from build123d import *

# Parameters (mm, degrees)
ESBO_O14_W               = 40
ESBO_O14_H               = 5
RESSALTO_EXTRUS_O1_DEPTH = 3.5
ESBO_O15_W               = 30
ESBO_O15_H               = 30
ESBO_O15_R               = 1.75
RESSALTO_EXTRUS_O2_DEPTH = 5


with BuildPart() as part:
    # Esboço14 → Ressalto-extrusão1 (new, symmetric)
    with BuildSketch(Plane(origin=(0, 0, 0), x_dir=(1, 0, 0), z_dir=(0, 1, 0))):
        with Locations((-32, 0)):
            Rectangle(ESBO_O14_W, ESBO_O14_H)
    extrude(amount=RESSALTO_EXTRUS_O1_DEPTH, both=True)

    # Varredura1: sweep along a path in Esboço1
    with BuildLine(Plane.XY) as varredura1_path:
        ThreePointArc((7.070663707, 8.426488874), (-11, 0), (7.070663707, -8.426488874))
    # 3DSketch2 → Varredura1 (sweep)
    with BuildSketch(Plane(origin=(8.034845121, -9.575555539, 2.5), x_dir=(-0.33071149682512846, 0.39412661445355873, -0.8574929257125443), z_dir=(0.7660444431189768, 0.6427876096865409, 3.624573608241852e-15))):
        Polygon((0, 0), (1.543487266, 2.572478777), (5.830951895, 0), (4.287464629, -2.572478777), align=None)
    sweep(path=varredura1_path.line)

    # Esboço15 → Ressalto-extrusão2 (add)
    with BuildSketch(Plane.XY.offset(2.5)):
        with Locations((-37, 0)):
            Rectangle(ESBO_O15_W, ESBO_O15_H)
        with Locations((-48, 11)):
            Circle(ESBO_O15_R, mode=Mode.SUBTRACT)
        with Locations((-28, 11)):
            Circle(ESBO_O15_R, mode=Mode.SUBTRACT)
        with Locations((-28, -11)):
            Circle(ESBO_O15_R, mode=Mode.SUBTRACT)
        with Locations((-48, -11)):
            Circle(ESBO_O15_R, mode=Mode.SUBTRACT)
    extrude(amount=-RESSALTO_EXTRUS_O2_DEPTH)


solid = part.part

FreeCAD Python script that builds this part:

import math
import FreeCAD as App
import Part
import Sketcher
from FreeCAD import Vector
Q = App.Units.Quantity


def add_polygon(sketch, points):
    """Adds a closed chain of lines whose ends are joined by coincident constraints."""
    first, n = sketch.GeometryCount, len(points)
    for a, b in zip(points, points[1:] + points[:1]):
        sketch.addGeometry(Part.LineSegment(App.Vector(*a, 0), App.Vector(*b, 0)), False)
    for i in range(n):
        sketch.addConstraint(Sketcher.Constraint("Coincident", first + i, 2, first + (i + 1) % n, 1))

doc = App.newDocument("Part")
body = doc.addObject("PartDesign::Body", "Body")

# Sketch on XZ plane
sketch1 = doc.addObject("Sketcher::SketchObject", "Sketch")
body.addObject(sketch1)
sketch1.AttachmentSupport = (doc.XZ_Plane, [""])
sketch1.MapMode = "FlatFace"
add_polygon(sketch1, [(-52, -2.5), (-52, 2.5), (-12, 2.5), (-12, -2.5)])  # lines 0-3
sketch1.addConstraint(Sketcher.Constraint("Vertical", 0))
sketch1.addConstraint(Sketcher.Constraint("Horizontal", 1))
sketch1.addConstraint(Sketcher.Constraint("Vertical", 2))
sketch1.addConstraint(Sketcher.Constraint("Horizontal", 3))
sketch1.addConstraint(Sketcher.Constraint("DistanceX", 1, 1, 1, 2, Q("40 mm")))
sketch1.addConstraint(Sketcher.Constraint("DistanceY", 0, 1, 0, 2, Q("5 mm")))
sketch1.addConstraint(Sketcher.Constraint("DistanceX", 0, 2, -1, 1, Q("52 mm")))
sketch1.addConstraint(Sketcher.Constraint("DistanceY", -1, 1, 0, 2, Q("2.5 mm")))
pad1 = doc.addObject("PartDesign::Pad", "Pad")
body.addObject(pad1)
pad1.Profile = sketch1
pad1.Length = 7
pad1.Midplane = True

# Sketch on an angled plane
sketch2 = doc.addObject("Sketcher::SketchObject", "Sketch001")
body.addObject(sketch2)
sketch2.Placement = App.Placement(Vector(8.034845, -9.575556, 2.5), App.Rotation(Vector(-0.330711497, 0.394126614, -0.857492926), Vector(-0.551185828, 0.656877691, 0.514495755), Vector(0.766044443, 0.64278761, 0), "ZXY"))
add_polygon(sketch2, [(1.543487, 2.572479), (0, 0), (4.287465, -2.572479), (5.830952, 0)])  # lines 0-3
sketch2.addConstraint(Sketcher.Constraint("Coincident", 0, 2, -1, 1))
sketch2.addConstraint(Sketcher.Constraint("PointOnObject", 2, 2, -1))
sketch2.addConstraint(Sketcher.Constraint("Perpendicular", 0, 1))
sketch2.addConstraint(Sketcher.Constraint("Perpendicular", 1, 2))
sketch2.addConstraint(Sketcher.Constraint("Perpendicular", 2, 3))
sketch2.addConstraint(Sketcher.Constraint("Distance", 0, Q("3 mm")))
sketch2.addConstraint(Sketcher.Constraint("Distance", 1, Q("5 mm")))

# Sketch on XY plane
sketch3 = doc.addObject("Sketcher::SketchObject", "Sketch002")
body.addObject(sketch3)
sketch3.AttachmentSupport = (doc.XY_Plane, [""])
sketch3.MapMode = "FlatFace"
sketch3.addGeometry(Part.ArcOfCircle(Part.Circle(Vector(0, 0, 0), Vector(0, 0, 1), 11), math.radians(50), math.radians(310)), False)
sketch3.addConstraint(Sketcher.Constraint("Coincident", 0, 3, -1, 1))
sketch3.addConstraint(Sketcher.Constraint("Radius", 0, Q("11 mm")))
sketch3.addConstraint(Sketcher.Constraint("DistanceY", -1, 1, 0, 1, Q("8.426489 mm")))
sketch3.addConstraint(Sketcher.Constraint("DistanceY", 0, 2, -1, 1, Q("8.426489 mm")))
doc.recompute()

additivepipe = doc.addObject("PartDesign::AdditivePipe", "AdditivePipe")
body.addObject(additivepipe)
additivepipe.Profile = sketch2
additivepipe.Spine = (sketch3, ["Edge1"])

# Sketch on XY plane
sketch4 = doc.addObject("Sketcher::SketchObject", "Sketch003")
body.addObject(sketch4)
sketch4.AttachmentSupport = (doc.XY_Plane, [""])
sketch4.MapMode = "FlatFace"
sketch4.AttachmentOffset = App.Placement(Vector(0, 0, 2.5), App.Rotation())
add_polygon(sketch4, [(-52, 15), (-52, -15), (-22, -15), (-22, 15)])  # lines 0-3
sketch4.addGeometry(Part.Circle(Vector(-48, -11, 0), Vector(0, 0, 1), 1.75), False)  # 4
sketch4.addGeometry(Part.Circle(Vector(-28, -11, 0), Vector(0, 0, 1), 1.75), False)  # 5
sketch4.addGeometry(Part.Circle(Vector(-48, 11, 0), Vector(0, 0, 1), 1.75), False)  # 6
sketch4.addGeometry(Part.Circle(Vector(-28, 11, 0), Vector(0, 0, 1), 1.75), False)  # 7
sketch4.addConstraint(Sketcher.Constraint("Vertical", 0))
sketch4.addConstraint(Sketcher.Constraint("Horizontal", 1))
sketch4.addConstraint(Sketcher.Constraint("Vertical", 2))
sketch4.addConstraint(Sketcher.Constraint("Horizontal", 3))
sketch4.addConstraint(Sketcher.Constraint("Equal", 4, 5))
sketch4.addConstraint(Sketcher.Constraint("Equal", 5, 6))
sketch4.addConstraint(Sketcher.Constraint("Equal", 6, 7))
sketch4.addConstraint(Sketcher.Constraint("Symmetric", 4, 3, 6, 3, -1))
sketch4.addConstraint(Sketcher.Constraint("Symmetric", 5, 3, 7, 3, -1))
sketch4.addConstraint(Sketcher.Constraint("Horizontal", 4, 3, 5, 3))
sketch4.addConstraint(Sketcher.Constraint("Equal", 3, 0))
sketch4.addConstraint(Sketcher.Constraint("Diameter", 4, Q("3.5 mm")))
sketch4.addConstraint(Sketcher.Constraint("DistanceX", 1, 1, 1, 2, Q("30 mm")))
sketch4.addConstraint(Sketcher.Constraint("DistanceX", 4, 3, -1, 1, Q("48 mm")))
sketch4.addConstraint(Sketcher.Constraint("DistanceY", 4, 3, -1, 1, Q("11 mm")))
sketch4.addConstraint(Sketcher.Constraint("DistanceX", 5, 3, -1, 1, Q("28 mm")))
sketch4.addConstraint(Sketcher.Constraint("DistanceX", 0, 2, -1, 1, Q("52 mm")))
sketch4.addConstraint(Sketcher.Constraint("DistanceY", 0, 2, -1, 1, Q("15 mm")))
pad2 = doc.addObject("PartDesign::Pad", "Pad001")
body.addObject(pad2)
pad2.Profile = sketch4
pad2.Length = 5
pad2.Reversed = True

doc.recompute()
